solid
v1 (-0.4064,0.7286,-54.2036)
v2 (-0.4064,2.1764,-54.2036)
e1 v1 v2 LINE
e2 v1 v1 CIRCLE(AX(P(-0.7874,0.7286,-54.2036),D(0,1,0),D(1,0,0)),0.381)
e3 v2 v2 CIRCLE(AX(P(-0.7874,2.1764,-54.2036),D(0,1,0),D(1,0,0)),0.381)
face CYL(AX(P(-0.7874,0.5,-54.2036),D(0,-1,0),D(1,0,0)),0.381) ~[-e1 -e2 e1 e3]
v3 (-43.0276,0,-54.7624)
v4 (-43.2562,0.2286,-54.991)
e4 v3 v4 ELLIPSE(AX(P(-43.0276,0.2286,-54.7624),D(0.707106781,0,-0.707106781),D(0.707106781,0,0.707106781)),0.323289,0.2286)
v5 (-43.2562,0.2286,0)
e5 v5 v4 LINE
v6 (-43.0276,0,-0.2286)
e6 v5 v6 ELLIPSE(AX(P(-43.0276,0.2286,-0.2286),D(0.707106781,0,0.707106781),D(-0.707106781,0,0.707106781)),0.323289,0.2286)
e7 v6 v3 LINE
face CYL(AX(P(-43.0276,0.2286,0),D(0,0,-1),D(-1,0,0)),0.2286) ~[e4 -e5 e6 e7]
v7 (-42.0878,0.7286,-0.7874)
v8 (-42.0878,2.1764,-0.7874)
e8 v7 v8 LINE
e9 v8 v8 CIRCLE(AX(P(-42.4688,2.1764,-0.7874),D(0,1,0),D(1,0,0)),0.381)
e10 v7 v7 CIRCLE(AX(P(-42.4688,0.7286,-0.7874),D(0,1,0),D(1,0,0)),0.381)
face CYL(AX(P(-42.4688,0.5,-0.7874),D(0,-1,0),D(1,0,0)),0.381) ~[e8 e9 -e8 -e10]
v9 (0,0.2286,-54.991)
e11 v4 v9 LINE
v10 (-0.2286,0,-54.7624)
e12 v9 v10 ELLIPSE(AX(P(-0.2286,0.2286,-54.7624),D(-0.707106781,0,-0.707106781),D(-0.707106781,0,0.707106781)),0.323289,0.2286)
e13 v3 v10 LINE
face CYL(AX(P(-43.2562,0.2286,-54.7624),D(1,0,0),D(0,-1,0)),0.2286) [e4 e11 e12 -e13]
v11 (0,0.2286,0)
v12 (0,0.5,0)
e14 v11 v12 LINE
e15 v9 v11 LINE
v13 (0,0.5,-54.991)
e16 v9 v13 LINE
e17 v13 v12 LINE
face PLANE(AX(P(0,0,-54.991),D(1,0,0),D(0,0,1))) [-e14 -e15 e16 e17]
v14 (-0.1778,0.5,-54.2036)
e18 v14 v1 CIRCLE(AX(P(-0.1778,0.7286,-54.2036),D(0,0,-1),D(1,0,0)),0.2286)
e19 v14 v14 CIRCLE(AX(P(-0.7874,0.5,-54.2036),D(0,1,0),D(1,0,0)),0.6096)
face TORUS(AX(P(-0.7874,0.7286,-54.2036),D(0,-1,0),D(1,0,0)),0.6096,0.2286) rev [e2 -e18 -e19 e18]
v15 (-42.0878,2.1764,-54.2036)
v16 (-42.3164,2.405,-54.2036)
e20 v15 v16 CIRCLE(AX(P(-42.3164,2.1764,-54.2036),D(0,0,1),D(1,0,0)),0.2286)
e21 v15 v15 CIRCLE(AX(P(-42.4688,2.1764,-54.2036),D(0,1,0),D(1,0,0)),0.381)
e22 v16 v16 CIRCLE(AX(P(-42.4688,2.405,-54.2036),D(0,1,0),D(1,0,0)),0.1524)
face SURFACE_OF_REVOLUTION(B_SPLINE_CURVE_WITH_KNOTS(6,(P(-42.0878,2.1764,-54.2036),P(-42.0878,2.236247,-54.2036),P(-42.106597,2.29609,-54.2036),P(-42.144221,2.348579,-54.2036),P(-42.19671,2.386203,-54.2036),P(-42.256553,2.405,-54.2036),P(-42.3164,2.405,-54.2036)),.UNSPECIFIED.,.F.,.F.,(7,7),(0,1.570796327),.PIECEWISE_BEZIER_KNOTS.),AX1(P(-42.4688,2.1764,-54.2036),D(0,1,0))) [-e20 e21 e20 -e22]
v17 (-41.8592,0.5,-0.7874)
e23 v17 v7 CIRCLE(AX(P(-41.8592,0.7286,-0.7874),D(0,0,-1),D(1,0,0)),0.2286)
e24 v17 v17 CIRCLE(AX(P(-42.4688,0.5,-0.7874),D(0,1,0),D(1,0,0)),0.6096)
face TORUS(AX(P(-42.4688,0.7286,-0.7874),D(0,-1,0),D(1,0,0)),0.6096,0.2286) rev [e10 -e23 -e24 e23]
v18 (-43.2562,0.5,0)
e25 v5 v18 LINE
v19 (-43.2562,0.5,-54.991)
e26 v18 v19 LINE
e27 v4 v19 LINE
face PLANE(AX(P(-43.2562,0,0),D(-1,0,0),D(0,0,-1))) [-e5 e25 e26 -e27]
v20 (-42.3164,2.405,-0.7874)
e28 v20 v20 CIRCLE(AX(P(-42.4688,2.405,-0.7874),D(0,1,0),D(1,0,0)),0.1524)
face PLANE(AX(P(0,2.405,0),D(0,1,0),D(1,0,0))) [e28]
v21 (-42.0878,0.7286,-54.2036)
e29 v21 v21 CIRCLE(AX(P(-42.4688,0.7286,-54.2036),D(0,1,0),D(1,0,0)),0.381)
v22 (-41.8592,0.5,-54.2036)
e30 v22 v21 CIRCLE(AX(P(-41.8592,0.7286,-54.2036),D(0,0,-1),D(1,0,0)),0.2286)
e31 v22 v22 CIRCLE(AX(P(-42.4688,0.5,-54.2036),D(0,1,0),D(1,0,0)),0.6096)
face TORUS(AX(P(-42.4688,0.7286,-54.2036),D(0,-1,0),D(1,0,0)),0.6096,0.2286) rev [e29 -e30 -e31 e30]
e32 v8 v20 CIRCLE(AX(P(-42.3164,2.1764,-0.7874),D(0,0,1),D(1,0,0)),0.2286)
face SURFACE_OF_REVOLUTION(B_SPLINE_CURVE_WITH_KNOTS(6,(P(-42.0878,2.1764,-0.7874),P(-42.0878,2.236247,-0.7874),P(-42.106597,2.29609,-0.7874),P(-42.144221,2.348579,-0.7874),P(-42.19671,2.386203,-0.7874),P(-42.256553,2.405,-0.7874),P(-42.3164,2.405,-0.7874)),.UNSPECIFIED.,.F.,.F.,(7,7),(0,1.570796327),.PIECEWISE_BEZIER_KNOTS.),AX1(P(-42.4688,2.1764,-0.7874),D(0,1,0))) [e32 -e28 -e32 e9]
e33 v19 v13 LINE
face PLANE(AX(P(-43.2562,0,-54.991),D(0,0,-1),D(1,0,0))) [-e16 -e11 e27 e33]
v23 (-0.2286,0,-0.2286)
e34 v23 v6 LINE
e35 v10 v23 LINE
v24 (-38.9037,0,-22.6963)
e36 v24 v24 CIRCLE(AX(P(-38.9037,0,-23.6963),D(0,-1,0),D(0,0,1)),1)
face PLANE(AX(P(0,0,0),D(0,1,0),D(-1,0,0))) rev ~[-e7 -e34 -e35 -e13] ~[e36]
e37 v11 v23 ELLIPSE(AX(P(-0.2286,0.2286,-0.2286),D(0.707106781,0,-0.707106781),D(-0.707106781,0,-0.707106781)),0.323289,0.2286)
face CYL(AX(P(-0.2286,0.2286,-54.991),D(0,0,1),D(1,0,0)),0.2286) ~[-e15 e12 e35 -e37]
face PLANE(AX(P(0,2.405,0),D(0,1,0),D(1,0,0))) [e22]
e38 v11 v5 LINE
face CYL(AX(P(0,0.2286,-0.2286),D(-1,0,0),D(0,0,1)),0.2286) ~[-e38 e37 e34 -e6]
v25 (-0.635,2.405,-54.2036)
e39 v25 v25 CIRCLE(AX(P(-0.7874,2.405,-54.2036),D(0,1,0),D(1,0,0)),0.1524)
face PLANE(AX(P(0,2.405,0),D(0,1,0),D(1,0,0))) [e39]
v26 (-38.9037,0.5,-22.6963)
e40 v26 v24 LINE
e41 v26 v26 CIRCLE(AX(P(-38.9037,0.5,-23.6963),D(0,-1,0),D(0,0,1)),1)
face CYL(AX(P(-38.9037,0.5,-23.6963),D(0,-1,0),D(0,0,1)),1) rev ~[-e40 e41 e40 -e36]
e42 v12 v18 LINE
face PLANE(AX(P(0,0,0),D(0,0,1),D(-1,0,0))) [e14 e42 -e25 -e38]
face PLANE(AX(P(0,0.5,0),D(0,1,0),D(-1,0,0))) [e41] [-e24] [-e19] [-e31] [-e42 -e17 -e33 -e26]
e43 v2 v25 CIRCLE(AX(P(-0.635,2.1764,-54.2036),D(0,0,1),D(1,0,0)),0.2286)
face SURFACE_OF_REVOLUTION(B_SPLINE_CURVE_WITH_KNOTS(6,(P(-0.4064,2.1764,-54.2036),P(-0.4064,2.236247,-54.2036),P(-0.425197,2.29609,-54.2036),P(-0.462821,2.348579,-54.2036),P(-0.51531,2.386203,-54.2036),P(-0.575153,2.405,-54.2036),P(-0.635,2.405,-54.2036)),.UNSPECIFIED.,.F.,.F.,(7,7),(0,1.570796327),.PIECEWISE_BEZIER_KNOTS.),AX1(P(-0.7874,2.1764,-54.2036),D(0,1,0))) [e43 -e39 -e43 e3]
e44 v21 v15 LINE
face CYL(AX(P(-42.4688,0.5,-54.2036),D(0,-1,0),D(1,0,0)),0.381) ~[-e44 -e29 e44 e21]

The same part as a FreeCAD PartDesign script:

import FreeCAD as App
import Part
import Sketcher
from FreeCAD import Vector
Q = App.Units.Quantity


def edges_at(feature, points):
    """Names of the edges that pass closest to the given points."""
    edges = feature.Shape.Edges
    near = lambda p: min(range(len(edges)), key=lambda i: edges[i].distToShape(Part.Vertex(*p))[0])
    return sorted({f"Edge{near(p) + 1}" for p in points})


def add_polygon(sketch, points):
    """Adds a closed chain of lines whose ends are joined by coincident constraints."""
    first, n = sketch.GeometryCount, len(points)
    for a, b in zip(points, points[1:] + points[:1]):
        sketch.addGeometry(Part.LineSegment(App.Vector(*a, 0), App.Vector(*b, 0)), False)
    for i in range(n):
        sketch.addConstraint(Sketcher.Constraint("Coincident", first + i, 2, first + (i + 1) % n, 1))

doc = App.newDocument("Part")
body = doc.addObject("PartDesign::Body", "Body")

sketch1 = body.newObject("Sketcher::SketchObject", "Sketch")
sketch1.AttachmentSupport = (doc.getObject("XZ_Plane"), [""])
sketch1.MapMode = "FlatFace"
add_polygon(sketch1, [(-43, 0), (0, 0), (0, -55), (-43, -55)])
sketch1.addConstraint([
    Sketcher.Constraint("Horizontal", 0),
    Sketcher.Constraint("Vertical", 1),
    Sketcher.Constraint("Horizontal", 2),
    Sketcher.Constraint("Vertical", 3),
    Sketcher.Constraint("Coincident", 0, 2, -1, 1),
    Sketcher.Constraint("DistanceX", 0, 1, 0, 2, Q("1.703 in")),
    Sketcher.Constraint("DistanceY", 1, 2, 1, 1, Q("2.165 in")),
])
pad1 = body.newObject("PartDesign::Pad", "Pad")
pad1.Profile = sketch1
pad1.Length = 0.5
pad1.Reversed = True

sketch2 = body.newObject("Sketcher::SketchObject", "Sketch001")
sketch2.AttachmentSupport = (doc.getObject("XZ_Plane"), [""])
sketch2.MapMode = "FlatFace"
sketch2.AttachmentOffset = App.Placement(Vector(0, 0, -0.5), App.Rotation())
sketch2.addGeometry([
    Part.Circle(Vector(-42.47, -0.79, 0), Vector(0, 0, 1), 0.38),
    Part.Circle(Vector(-42.47, -54.2, 0), Vector(0, 0, 1), 0.38),
    Part.Circle(Vector(-0.79, -54.2, 0), Vector(0, 0, 1), 0.38),
], False)
sketch2.addConstraint([
    Sketcher.Constraint("Equal", 0, 1),
    Sketcher.Constraint("Equal", 1, 2),
    Sketcher.Constraint("Horizontal", 1, 3, 2, 3),
    Sketcher.Constraint("Vertical", 0, 3, 1, 3),
    Sketcher.Constraint("Diameter", 0, Q("0.03 in")),
    Sketcher.Constraint("DistanceX", 0, 3, -1, 1, Q("1.672 in")),
    Sketcher.Constraint("DistanceY", 0, 3, -1, 1, Q("0.031 in")),
    Sketcher.Constraint("DistanceY", 1, 3, -1, 1, Q("2.134 in")),
    Sketcher.Constraint("DistanceX", 2, 3, -1, 1, Q("0.031 in")),
])
pad2 = body.newObject("PartDesign::Pad", "Pad001")
pad2.Profile = sketch2
pad2.Length = Q("0.075 in")
pad2.Reversed = True
doc.recompute()

fillet = body.newObject("PartDesign::Fillet", "Fillet")
fillet.Base = (pad2, edges_at(pad2, [
    (-42.85, 2.405, -0.787),
    (-42.85, 2.405, -54.204),
    (-1.168, 2.405, -54.204),
    (-1.168, 0.5, -54.204),
    (-42.85, 0.5, -54.204),
    (-42.85, 0.5, -0.787),
    (-21.628, 0, 0),
    (0, 0, -27.495),
    (-21.628, 0, -54.991),
    (-43.256, 0, -27.495),
]))
fillet.Radius = Q("0.009 in")

sketch3 = body.newObject("Sketcher::SketchObject", "Sketch002")
sketch3.AttachmentSupport = (doc.getObject("XZ_Plane"), [""])
sketch3.MapMode = "FlatFace"
sketch3.AttachmentOffset = App.Placement(Vector(0, 0, -0.5), App.Rotation())
sketch3.addGeometry(Part.Circle(Vector(-38.9, -23.7, 0), Vector(0, 0, 1), 1), False)
sketch3.addConstraint([
    Sketcher.Constraint("Diameter", 0, Q("2 mm")),
    Sketcher.Constraint("DistanceX", 0, 3, -1, 1, Q("38.9037 mm")),
    Sketcher.Constraint("DistanceY", 0, 3, -1, 1, Q("23.6963 mm")),
])
doc.recompute()
hole = body.newObject("PartDesign::Hole", "Hole")
hole.Profile = sketch3
hole.ThreadType = "None"
hole.Diameter = 2
hole.DepthType = "ThroughAll"
hole.Reversed = True

doc.recompute()
